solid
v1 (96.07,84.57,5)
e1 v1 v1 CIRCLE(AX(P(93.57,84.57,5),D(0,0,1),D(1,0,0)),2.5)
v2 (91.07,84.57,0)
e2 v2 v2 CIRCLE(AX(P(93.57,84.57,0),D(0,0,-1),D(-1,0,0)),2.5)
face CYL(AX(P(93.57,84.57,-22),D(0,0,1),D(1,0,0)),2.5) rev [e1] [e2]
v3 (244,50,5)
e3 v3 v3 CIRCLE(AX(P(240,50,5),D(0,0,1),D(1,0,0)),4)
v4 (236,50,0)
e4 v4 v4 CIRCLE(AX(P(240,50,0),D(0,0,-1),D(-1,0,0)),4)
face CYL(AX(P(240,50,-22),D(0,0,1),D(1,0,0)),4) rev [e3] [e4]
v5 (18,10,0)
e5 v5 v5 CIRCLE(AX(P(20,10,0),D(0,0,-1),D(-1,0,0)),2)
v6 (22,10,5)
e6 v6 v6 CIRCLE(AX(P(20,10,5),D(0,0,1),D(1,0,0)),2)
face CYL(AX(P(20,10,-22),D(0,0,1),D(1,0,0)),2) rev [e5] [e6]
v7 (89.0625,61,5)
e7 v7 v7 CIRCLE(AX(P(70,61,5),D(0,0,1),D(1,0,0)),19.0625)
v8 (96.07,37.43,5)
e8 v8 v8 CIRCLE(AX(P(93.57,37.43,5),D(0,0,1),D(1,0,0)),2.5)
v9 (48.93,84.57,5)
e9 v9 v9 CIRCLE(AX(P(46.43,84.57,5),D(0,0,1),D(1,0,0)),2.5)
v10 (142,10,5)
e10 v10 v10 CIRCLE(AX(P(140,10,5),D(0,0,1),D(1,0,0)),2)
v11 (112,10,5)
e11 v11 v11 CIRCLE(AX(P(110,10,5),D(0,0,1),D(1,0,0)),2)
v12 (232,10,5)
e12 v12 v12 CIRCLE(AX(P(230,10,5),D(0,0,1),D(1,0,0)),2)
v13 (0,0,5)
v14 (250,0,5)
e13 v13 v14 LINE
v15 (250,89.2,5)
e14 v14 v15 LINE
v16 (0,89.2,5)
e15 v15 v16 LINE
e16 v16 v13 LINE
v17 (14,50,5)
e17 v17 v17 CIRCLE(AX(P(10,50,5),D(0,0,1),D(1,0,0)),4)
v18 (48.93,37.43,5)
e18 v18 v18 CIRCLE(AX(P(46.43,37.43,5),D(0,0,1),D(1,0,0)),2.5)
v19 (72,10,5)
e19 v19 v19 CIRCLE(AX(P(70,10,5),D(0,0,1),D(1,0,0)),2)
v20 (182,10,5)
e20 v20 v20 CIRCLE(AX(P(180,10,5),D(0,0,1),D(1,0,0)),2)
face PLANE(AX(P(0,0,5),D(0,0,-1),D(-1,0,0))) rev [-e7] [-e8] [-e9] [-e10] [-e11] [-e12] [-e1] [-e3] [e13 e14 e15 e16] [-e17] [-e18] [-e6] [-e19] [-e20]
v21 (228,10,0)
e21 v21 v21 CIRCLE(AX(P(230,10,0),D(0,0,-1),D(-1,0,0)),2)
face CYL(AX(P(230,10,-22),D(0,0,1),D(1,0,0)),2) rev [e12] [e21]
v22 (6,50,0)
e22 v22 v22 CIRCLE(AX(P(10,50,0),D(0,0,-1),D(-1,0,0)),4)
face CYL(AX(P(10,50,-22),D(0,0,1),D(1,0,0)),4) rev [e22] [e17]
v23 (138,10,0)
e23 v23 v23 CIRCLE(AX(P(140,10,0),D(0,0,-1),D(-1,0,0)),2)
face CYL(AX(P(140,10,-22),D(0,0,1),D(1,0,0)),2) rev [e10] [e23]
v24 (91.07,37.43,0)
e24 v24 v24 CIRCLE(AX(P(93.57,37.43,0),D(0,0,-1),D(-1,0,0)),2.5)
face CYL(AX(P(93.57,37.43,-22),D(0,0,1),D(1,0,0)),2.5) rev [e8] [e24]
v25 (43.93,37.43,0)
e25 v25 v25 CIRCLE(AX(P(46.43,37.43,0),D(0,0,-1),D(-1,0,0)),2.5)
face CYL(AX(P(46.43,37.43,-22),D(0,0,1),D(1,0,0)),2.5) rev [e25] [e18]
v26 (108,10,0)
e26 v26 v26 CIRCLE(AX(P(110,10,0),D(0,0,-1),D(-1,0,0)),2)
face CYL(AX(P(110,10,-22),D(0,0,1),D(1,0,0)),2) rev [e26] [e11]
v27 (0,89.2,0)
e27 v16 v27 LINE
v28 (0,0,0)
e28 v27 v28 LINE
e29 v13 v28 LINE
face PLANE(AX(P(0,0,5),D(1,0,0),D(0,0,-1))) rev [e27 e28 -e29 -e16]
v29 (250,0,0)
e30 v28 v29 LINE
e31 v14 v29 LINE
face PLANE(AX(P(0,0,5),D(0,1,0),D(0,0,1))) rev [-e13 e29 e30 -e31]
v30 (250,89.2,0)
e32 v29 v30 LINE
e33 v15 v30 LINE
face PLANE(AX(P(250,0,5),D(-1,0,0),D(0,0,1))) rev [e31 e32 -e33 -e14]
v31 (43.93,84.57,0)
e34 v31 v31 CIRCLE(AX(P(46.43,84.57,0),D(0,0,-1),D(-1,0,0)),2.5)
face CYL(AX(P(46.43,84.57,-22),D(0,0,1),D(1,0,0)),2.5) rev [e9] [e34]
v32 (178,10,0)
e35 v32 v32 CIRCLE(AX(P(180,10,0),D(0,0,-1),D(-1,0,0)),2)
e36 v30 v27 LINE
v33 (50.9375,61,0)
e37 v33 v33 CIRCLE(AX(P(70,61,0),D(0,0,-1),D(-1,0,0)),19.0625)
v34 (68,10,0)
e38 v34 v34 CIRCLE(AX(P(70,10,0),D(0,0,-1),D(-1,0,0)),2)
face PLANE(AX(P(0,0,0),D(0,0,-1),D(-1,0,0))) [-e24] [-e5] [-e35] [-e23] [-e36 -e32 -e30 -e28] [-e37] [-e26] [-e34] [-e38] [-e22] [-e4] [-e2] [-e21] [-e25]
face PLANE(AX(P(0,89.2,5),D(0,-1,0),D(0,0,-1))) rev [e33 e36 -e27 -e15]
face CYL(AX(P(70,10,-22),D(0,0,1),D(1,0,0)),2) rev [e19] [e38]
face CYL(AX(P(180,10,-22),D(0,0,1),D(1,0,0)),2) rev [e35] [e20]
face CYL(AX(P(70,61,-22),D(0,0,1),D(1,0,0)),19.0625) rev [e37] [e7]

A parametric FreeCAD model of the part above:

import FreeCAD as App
import Part
import Sketcher
from FreeCAD import Vector


def add_polygon(sketch, points):
    """Adds a closed chain of lines whose ends are joined by coincident constraints."""
    first, n = sketch.GeometryCount, len(points)
    for a, b in zip(points, points[1:] + points[:1]):
        sketch.addGeometry(Part.LineSegment(App.Vector(*a, 0), App.Vector(*b, 0)), False)
    for i in range(n):
        sketch.addConstraint(Sketcher.Constraint("Coincident", first + i, 2, first + (i + 1) % n, 1))

doc = App.newDocument("Part")
body = doc.addObject("PartDesign::Body", "Body")

# Sketch on XY plane
sketch1 = body.newObject("Sketcher::SketchObject", "Sketch")
sketch1.AttachmentSupport = (doc.getObject("XY_Plane"), [""])
sketch1.MapMode = "FlatFace"
add_polygon(sketch1, [(0, 89.2), (0, 0), (250, 0), (250, 89.2)])  # lines 0-3
sketch1.addConstraint(Sketcher.Constraint("Vertical", 0))
sketch1.addConstraint(Sketcher.Constraint("Horizontal", 1))
sketch1.addConstraint(Sketcher.Constraint("Vertical", 2))
sketch1.addConstraint(Sketcher.Constraint("Horizontal", 3))
sketch1.addConstraint(Sketcher.Constraint("Coincident", 0, 2, -1, 1))
sketch1.addConstraint(Sketcher.Constraint("DistanceX", 1, 1, 1, 2, 250.0))
sketch1.addConstraint(Sketcher.Constraint("DistanceY", 0, 2, 0, 1, 89.2))
pad1 = body.newObject("PartDesign::Pad", "Pad")
pad1.Profile = sketch1
pad1.Length = 5

# Sketch on XY plane
sketch2 = body.newObject("Sketcher::SketchObject", "Sketch001")
sketch2.AttachmentSupport = (doc.getObject("XY_Plane"), [""])
sketch2.MapMode = "FlatFace"
sketch2.AttachmentOffset = App.Placement(Vector(0, 0, 5), App.Rotation())
sketch2.addGeometry(Part.Circle(Vector(20, 10, 0), Vector(0, 0, 1), 2), False)
sketch2.addGeometry(Part.Circle(Vector(70, 10, 0), Vector(0, 0, 1), 2), False)
sketch2.addGeometry(Part.Circle(Vector(110, 10, 0), Vector(0, 0, 1), 2), False)
sketch2.addGeometry(Part.Circle(Vector(140, 10, 0), Vector(0, 0, 1), 2), False)
sketch2.addGeometry(Part.Circle(Vector(180, 10, 0), Vector(0, 0, 1), 2), False)
sketch2.addGeometry(Part.Circle(Vector(230, 10, 0), Vector(0, 0, 1), 2), False)
sketch2.addGeometry(Part.Circle(Vector(240, 50, 0), Vector(0, 0, 1), 4), False)
sketch2.addGeometry(Part.Circle(Vector(10, 50, 0), Vector(0, 0, 1), 4), False)
sketch2.addConstraint(Sketcher.Constraint("Equal", 0, 1))
sketch2.addConstraint(Sketcher.Constraint("Equal", 1, 2))
sketch2.addConstraint(Sketcher.Constraint("Equal", 2, 3))
sketch2.addConstraint(Sketcher.Constraint("Equal", 3, 4))
sketch2.addConstraint(Sketcher.Constraint("Equal", 4, 5))
sketch2.addConstraint(Sketcher.Constraint("Equal", 6, 7))
sketch2.addConstraint(Sketcher.Constraint("Horizontal", 0, 3, 1, 3))
sketch2.addConstraint(Sketcher.Constraint("Horizontal", 1, 3, 2, 3))
sketch2.addConstraint(Sketcher.Constraint("Horizontal", 2, 3, 3, 3))
sketch2.addConstraint(Sketcher.Constraint("Horizontal", 3, 3, 4, 3))
sketch2.addConstraint(Sketcher.Constraint("Horizontal", 4, 3, 5, 3))
sketch2.addConstraint(Sketcher.Constraint("Horizontal", 6, 3, 7, 3))
sketch2.addConstraint(Sketcher.Constraint("Diameter", 0, 4.0))
sketch2.addConstraint(Sketcher.Constraint("Diameter", 6, 8.0))
sketch2.addConstraint(Sketcher.Constraint("DistanceX", -1, 1, 0, 3, 20.0))
sketch2.addConstraint(Sketcher.Constraint("DistanceY", -1, 1, 0, 3, 10.0))
sketch2.addConstraint(Sketcher.Constraint("DistanceX", -1, 1, 1, 3, 70.0))
sketch2.addConstraint(Sketcher.Constraint("DistanceX", -1, 1, 2, 3, 110.0))
sketch2.addConstraint(Sketcher.Constraint("DistanceX", -1, 1, 3, 3, 140.0))
sketch2.addConstraint(Sketcher.Constraint("DistanceX", -1, 1, 4, 3, 180.0))
sketch2.addConstraint(Sketcher.Constraint("DistanceX", -1, 1, 5, 3, 230.0))
sketch2.addConstraint(Sketcher.Constraint("DistanceX", -1, 1, 6, 3, 240.0))
sketch2.addConstraint(Sketcher.Constraint("DistanceY", -1, 1, 6, 3, 50.0))
sketch2.addConstraint(Sketcher.Constraint("DistanceX", -1, 1, 7, 3, 10.0))
pocket1 = body.newObject("PartDesign::Pocket", "Pocket")
pocket1.Profile = sketch2
pocket1.Length = 27

# Sketch on XY plane
sketch3 = body.newObject("Sketcher::SketchObject", "Sketch002")
sketch3.AttachmentSupport = (doc.getObject("XY_Plane"), [""])
sketch3.MapMode = "FlatFace"
sketch3.AttachmentOffset = App.Placement(Vector(0, 0, 5), App.Rotation())
sketch3.addGeometry(Part.Circle(Vector(93.57, 84.57, 0), Vector(0, 0, 1), 2.5), False)
sketch3.addGeometry(Part.Circle(Vector(46.43, 84.57, 0), Vector(0, 0, 1), 2.5), False)
sketch3.addGeometry(Part.Circle(Vector(46.43, 37.43, 0), Vector(0, 0, 1), 2.5), False)
sketch3.addGeometry(Part.Circle(Vector(93.57, 37.43, 0), Vector(0, 0, 1), 2.5), False)
sketch3.addConstraint(Sketcher.Constraint("Equal", 0, 1))
sketch3.addConstraint(Sketcher.Constraint("Equal", 1, 2))
sketch3.addConstraint(Sketcher.Constraint("Equal", 2, 3))
sketch3.addConstraint(Sketcher.Constraint("Horizontal", 0, 3, 1, 3))
sketch3.addConstraint(Sketcher.Constraint("Horizontal", 2, 3, 3, 3))
sketch3.addConstraint(Sketcher.Constraint("Vertical", 1, 3, 2, 3))
sketch3.addConstraint(Sketcher.Constraint("Vertical", 0, 3, 3, 3))
sketch3.addConstraint(Sketcher.Constraint("Diameter", 0, 5.0))
sketch3.addConstraint(Sketcher.Constraint("DistanceX", -1, 1, 0, 3, 93.57))
sketch3.addConstraint(Sketcher.Constraint("DistanceY", -1, 1, 0, 3, 84.57))
sketch3.addConstraint(Sketcher.Constraint("DistanceX", -1, 1, 1, 3, 46.43))
sketch3.addConstraint(Sketcher.Constraint("DistanceY", -1, 1, 2, 3, 37.43))
pocket2 = body.newObject("PartDesign::Pocket", "Pocket001")
pocket2.Profile = sketch3
pocket2.Length = 27

# Sketch on XY plane
sketch4 = body.newObject("Sketcher::SketchObject", "Sketch003")
sketch4.AttachmentSupport = (doc.getObject("XY_Plane"), [""])
sketch4.MapMode = "FlatFace"
sketch4.AttachmentOffset = App.Placement(Vector(0, 0, 5), App.Rotation())
sketch4.addGeometry(Part.Circle(Vector(70, 61, 0), Vector(0, 0, 1), 19.0625), False)
sketch4.addConstraint(Sketcher.Constraint("Diameter", 0, 38.125))
sketch4.addConstraint(Sketcher.Constraint("DistanceX", -1, 1, 0, 3, 70.0))
sketch4.addConstraint(Sketcher.Constraint("DistanceY", -1, 1, 0, 3, 61.0))
pocket3 = body.newObject("PartDesign::Pocket", "Pocket002")
pocket3.Profile = sketch4
pocket3.Length = 27

doc.recompute()
